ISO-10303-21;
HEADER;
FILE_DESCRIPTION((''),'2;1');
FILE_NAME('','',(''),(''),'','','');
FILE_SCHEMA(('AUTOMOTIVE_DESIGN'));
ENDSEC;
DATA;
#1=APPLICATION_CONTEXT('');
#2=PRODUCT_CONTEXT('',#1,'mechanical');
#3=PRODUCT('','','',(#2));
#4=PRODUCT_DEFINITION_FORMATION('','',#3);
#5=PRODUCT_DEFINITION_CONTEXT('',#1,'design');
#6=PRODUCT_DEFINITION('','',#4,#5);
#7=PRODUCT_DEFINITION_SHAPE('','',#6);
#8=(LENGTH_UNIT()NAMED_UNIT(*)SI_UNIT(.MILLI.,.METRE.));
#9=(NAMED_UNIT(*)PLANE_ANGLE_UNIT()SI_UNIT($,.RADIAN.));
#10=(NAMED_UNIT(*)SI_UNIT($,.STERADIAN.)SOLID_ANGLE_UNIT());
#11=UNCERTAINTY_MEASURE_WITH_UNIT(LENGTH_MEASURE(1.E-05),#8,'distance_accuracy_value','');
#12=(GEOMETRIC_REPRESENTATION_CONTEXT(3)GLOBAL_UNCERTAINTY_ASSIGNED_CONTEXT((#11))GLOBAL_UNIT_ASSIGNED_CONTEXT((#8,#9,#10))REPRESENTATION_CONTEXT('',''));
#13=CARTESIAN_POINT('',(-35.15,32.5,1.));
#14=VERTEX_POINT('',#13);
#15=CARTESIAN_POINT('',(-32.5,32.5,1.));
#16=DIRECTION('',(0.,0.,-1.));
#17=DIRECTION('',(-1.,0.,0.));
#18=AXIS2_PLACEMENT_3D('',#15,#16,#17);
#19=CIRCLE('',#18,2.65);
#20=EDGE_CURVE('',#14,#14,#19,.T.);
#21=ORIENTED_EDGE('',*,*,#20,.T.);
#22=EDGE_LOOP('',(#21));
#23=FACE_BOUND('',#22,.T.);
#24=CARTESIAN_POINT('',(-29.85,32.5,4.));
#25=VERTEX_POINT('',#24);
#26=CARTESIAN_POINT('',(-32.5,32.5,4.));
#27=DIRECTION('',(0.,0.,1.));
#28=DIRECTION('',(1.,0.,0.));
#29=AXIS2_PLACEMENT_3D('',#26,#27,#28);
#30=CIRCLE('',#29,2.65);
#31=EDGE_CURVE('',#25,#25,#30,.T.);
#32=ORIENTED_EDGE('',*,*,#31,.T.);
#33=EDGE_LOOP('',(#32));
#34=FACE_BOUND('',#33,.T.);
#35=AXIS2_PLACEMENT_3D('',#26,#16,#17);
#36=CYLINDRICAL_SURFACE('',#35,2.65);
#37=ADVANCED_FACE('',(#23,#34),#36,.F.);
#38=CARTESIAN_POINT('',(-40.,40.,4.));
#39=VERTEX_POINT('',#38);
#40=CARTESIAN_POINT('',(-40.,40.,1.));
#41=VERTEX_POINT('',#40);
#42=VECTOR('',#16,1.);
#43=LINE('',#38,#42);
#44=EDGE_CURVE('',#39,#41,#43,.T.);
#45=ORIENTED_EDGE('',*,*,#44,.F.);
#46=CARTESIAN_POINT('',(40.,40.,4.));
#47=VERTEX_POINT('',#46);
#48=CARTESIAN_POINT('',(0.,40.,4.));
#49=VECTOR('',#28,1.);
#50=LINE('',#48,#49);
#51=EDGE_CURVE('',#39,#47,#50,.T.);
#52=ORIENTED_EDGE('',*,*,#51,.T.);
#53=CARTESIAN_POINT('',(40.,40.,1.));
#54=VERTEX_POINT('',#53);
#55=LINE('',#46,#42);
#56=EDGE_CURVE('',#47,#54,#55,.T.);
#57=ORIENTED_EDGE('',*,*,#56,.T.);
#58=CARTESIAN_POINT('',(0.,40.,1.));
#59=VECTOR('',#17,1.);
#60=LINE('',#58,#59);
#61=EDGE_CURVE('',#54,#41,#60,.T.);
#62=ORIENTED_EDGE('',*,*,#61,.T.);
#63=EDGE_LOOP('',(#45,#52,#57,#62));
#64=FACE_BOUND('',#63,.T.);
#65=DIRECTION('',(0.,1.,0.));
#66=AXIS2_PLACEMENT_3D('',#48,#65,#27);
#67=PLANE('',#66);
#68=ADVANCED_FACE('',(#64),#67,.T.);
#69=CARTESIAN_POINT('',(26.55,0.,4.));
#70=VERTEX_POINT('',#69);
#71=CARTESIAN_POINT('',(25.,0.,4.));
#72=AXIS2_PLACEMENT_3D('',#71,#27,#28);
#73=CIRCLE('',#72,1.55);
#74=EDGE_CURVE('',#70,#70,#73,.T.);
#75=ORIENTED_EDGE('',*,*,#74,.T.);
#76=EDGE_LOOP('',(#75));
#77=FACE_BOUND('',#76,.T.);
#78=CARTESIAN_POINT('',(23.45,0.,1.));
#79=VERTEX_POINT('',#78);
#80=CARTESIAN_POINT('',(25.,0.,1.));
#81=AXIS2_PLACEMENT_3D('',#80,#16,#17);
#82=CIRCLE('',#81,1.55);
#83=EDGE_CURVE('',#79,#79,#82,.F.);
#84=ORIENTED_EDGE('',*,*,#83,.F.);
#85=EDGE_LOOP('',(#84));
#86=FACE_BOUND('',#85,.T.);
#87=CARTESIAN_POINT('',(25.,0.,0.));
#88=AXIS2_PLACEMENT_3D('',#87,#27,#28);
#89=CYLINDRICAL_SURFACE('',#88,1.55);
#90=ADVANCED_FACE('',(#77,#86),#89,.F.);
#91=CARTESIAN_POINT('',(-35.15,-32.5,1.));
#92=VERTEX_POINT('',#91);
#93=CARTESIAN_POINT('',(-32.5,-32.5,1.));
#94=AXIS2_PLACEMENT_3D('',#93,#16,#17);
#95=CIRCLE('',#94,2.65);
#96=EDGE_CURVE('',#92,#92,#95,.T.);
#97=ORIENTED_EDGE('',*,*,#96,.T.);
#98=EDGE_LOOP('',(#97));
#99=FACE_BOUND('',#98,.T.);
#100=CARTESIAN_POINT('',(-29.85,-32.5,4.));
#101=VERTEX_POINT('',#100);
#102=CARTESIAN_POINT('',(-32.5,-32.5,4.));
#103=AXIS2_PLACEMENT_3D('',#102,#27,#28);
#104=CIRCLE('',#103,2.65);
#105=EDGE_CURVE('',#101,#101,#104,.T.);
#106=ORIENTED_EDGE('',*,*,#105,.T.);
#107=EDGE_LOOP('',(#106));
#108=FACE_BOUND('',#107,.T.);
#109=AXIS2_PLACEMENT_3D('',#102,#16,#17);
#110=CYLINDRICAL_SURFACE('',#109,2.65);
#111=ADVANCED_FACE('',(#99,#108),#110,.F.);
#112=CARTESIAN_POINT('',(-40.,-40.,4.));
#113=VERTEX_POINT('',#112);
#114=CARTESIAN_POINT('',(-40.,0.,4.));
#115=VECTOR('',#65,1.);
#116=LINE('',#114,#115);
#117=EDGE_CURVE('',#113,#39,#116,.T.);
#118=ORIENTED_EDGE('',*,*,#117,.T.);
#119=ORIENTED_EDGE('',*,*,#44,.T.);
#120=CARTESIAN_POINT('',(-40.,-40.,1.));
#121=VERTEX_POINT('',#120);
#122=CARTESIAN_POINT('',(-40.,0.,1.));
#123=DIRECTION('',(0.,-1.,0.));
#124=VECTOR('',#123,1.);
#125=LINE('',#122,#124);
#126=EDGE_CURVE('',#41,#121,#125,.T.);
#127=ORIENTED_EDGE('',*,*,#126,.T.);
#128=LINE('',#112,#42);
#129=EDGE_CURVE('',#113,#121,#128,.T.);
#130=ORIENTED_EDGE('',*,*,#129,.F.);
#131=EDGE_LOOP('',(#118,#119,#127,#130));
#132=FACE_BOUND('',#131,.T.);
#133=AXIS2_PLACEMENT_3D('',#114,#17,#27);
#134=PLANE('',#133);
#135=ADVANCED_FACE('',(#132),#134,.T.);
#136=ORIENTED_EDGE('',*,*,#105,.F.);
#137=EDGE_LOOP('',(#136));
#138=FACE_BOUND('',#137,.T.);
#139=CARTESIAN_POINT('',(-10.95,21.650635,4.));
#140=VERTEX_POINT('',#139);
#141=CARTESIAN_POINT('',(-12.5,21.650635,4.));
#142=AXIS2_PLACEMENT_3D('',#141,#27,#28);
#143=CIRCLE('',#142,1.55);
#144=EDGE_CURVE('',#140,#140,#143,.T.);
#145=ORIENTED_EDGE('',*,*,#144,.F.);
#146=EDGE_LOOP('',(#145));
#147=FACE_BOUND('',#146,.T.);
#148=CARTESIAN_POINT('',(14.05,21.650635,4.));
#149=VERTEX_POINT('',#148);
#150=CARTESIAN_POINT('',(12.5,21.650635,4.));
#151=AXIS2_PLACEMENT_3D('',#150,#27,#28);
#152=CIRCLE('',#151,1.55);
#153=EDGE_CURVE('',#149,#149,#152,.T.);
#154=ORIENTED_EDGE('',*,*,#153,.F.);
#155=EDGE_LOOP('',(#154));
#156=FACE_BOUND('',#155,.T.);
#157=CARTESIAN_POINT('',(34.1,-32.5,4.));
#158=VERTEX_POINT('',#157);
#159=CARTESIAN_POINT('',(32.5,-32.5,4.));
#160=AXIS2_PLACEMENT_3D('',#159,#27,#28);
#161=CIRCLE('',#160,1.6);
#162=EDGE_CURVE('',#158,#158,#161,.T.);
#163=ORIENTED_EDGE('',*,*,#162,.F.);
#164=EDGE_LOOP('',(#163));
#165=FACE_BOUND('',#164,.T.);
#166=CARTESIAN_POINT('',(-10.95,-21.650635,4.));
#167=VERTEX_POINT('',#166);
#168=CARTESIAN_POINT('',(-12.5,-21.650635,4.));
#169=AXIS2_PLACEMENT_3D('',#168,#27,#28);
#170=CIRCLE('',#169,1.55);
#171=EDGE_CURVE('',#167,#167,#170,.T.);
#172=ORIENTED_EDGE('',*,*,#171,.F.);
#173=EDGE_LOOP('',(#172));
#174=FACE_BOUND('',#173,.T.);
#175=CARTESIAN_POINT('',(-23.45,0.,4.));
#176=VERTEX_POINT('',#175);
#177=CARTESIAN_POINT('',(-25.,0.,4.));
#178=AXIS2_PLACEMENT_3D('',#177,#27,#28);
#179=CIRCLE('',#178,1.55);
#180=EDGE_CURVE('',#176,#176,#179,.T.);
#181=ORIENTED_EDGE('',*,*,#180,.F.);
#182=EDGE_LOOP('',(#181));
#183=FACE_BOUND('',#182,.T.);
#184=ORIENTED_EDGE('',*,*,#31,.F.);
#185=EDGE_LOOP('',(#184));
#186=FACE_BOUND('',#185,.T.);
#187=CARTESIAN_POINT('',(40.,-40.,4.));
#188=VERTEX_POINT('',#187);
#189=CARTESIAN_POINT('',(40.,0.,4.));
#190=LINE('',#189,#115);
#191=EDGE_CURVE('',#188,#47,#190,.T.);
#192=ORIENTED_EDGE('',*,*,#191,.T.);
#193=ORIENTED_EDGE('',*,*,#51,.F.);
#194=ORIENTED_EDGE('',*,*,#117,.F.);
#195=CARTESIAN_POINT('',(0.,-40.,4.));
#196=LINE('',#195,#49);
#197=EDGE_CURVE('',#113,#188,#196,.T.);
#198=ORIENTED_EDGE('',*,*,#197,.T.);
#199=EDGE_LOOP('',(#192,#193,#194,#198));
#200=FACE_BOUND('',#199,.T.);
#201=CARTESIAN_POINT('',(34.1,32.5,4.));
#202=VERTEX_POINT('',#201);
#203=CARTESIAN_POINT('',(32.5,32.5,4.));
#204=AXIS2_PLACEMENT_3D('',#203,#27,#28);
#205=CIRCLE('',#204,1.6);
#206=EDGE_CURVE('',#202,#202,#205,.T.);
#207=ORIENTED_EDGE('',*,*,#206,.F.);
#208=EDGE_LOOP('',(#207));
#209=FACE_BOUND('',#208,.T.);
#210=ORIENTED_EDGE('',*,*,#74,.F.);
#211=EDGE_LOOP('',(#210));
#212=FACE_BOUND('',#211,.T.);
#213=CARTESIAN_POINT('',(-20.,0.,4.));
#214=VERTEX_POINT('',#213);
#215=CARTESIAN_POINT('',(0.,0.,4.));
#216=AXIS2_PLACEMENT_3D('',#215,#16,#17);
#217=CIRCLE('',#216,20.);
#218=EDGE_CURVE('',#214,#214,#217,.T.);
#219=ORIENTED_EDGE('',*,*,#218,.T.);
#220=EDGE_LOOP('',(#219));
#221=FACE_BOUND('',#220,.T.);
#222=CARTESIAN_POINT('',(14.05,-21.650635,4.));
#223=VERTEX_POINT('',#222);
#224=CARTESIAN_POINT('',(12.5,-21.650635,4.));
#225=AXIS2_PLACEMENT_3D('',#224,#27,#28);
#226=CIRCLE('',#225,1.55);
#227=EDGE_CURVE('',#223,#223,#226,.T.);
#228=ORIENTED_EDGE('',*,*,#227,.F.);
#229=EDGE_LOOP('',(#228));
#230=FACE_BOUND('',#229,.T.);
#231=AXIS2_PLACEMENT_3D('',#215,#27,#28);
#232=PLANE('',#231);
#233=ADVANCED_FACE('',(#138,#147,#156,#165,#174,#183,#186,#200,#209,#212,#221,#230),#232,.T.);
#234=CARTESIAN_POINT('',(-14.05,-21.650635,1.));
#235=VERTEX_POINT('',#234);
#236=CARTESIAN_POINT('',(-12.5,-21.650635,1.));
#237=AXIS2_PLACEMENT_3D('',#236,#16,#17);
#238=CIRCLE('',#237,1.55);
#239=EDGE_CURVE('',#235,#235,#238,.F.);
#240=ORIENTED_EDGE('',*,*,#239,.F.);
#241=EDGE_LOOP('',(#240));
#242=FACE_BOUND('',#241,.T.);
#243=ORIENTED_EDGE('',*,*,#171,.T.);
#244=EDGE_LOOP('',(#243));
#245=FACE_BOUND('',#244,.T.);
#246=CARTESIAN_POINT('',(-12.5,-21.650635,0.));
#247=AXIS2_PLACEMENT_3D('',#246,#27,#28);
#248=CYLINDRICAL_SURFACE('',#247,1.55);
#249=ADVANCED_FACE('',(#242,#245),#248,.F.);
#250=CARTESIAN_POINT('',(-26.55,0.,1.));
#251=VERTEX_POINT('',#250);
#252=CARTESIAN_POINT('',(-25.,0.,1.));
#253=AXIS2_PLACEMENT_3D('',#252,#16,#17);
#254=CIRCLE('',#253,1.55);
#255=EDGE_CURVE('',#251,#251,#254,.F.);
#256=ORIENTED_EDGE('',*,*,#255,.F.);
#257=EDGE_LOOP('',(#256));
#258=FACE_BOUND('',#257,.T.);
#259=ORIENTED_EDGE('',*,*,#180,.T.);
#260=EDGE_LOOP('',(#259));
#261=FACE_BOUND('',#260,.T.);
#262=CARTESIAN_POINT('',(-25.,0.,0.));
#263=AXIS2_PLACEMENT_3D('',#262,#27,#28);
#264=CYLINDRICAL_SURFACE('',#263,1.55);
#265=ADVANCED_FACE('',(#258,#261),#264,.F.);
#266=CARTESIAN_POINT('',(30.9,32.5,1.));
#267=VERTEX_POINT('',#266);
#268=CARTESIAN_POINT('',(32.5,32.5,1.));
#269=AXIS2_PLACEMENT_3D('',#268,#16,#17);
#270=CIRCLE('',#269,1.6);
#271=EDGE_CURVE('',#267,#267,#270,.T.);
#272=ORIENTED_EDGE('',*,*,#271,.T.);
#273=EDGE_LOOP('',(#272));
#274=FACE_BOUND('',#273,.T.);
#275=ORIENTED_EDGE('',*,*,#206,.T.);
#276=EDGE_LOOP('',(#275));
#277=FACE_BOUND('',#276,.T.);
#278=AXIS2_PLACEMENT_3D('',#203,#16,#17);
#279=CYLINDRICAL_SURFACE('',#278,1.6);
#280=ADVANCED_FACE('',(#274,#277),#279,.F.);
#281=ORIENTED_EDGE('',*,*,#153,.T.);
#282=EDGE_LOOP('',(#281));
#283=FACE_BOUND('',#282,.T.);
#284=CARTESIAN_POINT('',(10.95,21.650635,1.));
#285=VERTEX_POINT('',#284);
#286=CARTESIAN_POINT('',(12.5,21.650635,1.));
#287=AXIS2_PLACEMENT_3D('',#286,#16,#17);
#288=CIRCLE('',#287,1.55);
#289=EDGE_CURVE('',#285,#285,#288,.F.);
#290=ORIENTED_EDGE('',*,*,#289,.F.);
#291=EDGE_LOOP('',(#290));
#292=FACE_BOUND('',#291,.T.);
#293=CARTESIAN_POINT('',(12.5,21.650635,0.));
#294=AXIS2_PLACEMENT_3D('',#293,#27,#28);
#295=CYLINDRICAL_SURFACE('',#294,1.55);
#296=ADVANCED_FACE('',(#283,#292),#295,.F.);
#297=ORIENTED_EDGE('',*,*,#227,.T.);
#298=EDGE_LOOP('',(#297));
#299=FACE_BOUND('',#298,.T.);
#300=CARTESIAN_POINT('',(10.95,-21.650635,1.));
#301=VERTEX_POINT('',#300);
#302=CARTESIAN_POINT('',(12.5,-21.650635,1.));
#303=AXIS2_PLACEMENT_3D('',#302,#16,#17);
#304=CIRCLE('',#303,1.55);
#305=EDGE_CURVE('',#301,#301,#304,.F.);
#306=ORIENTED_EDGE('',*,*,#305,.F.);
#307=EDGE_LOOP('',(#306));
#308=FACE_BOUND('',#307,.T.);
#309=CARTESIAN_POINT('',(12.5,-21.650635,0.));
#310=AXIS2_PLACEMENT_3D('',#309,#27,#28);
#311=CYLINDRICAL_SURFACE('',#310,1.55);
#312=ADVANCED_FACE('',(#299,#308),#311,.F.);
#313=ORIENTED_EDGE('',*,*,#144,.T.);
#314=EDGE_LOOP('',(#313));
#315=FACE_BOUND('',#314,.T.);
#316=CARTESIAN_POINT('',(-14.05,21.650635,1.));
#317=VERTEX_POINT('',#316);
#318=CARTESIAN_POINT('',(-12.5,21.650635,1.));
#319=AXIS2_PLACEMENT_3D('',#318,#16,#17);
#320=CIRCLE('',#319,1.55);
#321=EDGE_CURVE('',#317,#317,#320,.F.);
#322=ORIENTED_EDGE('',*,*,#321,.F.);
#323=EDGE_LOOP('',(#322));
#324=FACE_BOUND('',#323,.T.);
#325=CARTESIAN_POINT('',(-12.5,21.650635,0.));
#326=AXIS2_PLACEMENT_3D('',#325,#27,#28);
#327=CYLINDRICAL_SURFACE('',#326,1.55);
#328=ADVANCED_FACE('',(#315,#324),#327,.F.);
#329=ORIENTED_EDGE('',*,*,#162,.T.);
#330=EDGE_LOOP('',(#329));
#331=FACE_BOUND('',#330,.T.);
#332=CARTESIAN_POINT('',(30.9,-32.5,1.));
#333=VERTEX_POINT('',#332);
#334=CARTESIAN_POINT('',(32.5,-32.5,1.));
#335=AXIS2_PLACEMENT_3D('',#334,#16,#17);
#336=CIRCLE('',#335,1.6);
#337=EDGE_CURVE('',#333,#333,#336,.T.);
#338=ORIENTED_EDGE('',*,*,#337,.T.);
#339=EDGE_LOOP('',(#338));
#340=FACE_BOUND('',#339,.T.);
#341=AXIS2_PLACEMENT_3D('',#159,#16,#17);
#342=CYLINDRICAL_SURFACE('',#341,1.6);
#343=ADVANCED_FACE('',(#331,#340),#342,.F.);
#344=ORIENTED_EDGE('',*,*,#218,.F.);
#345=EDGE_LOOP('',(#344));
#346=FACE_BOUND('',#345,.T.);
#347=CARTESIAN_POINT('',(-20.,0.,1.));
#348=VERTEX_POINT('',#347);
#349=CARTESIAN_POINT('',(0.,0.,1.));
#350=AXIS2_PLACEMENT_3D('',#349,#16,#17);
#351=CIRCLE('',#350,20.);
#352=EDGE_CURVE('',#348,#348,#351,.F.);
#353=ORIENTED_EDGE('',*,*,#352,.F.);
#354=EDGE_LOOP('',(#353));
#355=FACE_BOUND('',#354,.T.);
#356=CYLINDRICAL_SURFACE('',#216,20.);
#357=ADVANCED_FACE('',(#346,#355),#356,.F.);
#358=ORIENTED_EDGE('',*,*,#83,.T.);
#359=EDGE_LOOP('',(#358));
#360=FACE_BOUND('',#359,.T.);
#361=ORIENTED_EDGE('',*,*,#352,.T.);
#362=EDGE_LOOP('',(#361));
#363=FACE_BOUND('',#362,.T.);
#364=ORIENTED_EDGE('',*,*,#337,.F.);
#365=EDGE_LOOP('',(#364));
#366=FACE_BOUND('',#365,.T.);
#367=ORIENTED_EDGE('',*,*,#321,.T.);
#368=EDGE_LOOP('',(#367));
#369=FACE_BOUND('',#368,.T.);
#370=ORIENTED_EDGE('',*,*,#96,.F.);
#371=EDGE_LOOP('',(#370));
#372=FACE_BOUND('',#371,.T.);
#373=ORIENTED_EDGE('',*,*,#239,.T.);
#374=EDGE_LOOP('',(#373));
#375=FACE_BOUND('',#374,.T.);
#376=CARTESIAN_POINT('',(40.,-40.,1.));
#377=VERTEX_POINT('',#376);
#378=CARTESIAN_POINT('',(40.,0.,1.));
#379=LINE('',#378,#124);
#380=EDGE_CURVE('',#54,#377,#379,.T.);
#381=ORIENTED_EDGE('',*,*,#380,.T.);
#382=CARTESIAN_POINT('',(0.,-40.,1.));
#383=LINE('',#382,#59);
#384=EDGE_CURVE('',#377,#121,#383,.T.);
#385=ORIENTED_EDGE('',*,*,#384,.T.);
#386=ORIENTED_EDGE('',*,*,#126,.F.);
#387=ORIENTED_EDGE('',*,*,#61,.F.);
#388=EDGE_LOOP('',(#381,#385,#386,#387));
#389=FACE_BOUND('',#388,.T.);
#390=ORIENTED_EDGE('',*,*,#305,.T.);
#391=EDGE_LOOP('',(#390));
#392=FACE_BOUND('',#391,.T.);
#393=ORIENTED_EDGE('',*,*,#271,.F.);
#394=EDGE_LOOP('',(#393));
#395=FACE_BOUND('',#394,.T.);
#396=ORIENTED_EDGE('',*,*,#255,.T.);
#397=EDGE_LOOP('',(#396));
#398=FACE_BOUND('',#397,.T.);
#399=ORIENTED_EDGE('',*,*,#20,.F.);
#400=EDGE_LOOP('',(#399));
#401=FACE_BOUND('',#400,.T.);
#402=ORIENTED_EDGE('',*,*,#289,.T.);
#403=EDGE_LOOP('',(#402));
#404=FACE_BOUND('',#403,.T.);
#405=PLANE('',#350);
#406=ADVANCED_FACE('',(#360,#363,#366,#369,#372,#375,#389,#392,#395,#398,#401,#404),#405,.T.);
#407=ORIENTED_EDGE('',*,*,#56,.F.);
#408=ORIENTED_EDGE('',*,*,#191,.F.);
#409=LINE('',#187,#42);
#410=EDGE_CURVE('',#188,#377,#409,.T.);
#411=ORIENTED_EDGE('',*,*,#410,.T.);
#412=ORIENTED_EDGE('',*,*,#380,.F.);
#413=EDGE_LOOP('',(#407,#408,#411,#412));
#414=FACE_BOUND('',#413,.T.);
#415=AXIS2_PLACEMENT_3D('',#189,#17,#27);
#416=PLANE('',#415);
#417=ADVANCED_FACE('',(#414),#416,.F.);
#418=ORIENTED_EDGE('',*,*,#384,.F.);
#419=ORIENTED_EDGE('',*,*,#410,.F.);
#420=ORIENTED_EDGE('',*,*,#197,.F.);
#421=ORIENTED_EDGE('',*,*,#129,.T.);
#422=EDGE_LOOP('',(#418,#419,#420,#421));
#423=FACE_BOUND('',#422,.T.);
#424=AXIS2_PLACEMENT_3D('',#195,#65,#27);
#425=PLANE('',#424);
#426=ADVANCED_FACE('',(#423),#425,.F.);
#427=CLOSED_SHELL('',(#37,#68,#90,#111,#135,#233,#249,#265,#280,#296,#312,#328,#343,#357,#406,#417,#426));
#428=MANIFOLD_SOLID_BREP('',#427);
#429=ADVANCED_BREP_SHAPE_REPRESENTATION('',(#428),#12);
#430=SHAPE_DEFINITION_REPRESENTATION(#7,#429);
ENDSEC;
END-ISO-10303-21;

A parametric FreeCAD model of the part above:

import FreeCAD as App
import Part
import Sketcher


def add_polygon(sketch, points):
    """Adds a closed chain of lines whose ends are joined by coincident constraints."""
    first, n = sketch.GeometryCount, len(points)
    for a, b in zip(points, points[1:] + points[:1]):
        sketch.addGeometry(Part.LineSegment(App.Vector(*a, 0), App.Vector(*b, 0)), False)
    for i in range(n):
        sketch.addConstraint(Sketcher.Constraint("Coincident", first + i, 2, first + (i + 1) % n, 1))

doc = App.newDocument("Part")
body = doc.addObject("PartDesign::Body", "Body")

sketch1 = doc.addObject("Sketcher::SketchObject", "Sketch")
body.addObject(sketch1)
sketch1.AttachmentSupport = (doc.XY_Plane, [""])
sketch1.MapMode = "FlatFace"
add_polygon(sketch1, [(-40, 40), (-40, -40), (40, -40), (40, 40)])
sketch1.addGeometry(Part.Circle(App.Vector(-32.5, -32.5, 0), App.Vector(0, 0, 1), 2.6), False)
sketch1.addGeometry(Part.Circle(App.Vector(32.5, -32.5, 0), App.Vector(0, 0, 1), 1.6), False)
sketch1.addGeometry(Part.Circle(App.Vector(-32.5, 32.5, 0), App.Vector(0, 0, 1), 2.6), False)
sketch1.addGeometry(Part.Circle(App.Vector(0, 0, 0), App.Vector(0, 0, 1), 18), False)
sketch1.addGeometry(Part.Circle(App.Vector(32.5, 32.5, 0), App.Vector(0, 0, 1), 1.6), False)
sketch1.addConstraint(Sketcher.Constraint("Vertical", 0))
sketch1.addConstraint(Sketcher.Constraint("Horizontal", 1))
sketch1.addConstraint(Sketcher.Constraint("Vertical", 2))
sketch1.addConstraint(Sketcher.Constraint("Horizontal", 3))
sketch1.addConstraint(Sketcher.Constraint("Coincident", 7, 3, -1, 1))
sketch1.addConstraint(Sketcher.Constraint("Equal", 4, 6))
sketch1.addConstraint(Sketcher.Constraint("Equal", 5, 8))
sketch1.addConstraint(Sketcher.Constraint("Symmetric", 5, 3, 6, 3, -1, 1))
sketch1.addConstraint(Sketcher.Constraint("Symmetric", 4, 3, 8, 3, -1, 1))
sketch1.addConstraint(Sketcher.Constraint("Symmetric", 0, 2, 2, 2, -1, 1))
sketch1.addConstraint(Sketcher.Constraint("Symmetric", 4, 3, 5, 3, -2))
sketch1.addConstraint(Sketcher.Constraint("Equal", 3, 0))
sketch1.addConstraint(Sketcher.Constraint("Diameter", 7, 36.0))
sketch1.addConstraint(Sketcher.Constraint("Diameter", 4, 5.3))
sketch1.addConstraint(Sketcher.Constraint("Diameter", 5, 3.2))
sketch1.addConstraint(Sketcher.Constraint("DistanceX", 1, 1, 1, 2, 80.0))
sketch1.addConstraint(Sketcher.Constraint("DistanceX", 4, 3, 5, 3, 65.0))
sketch1.addConstraint(Sketcher.Constraint("DistanceY", 4, 3, 6, 3, 65.0))
pad1 = doc.addObject("PartDesign::Pad", "Pad")
body.addObject(pad1)
pad1.Profile = sketch1
pad1.Length = 4

sketch2 = doc.addObject("Sketcher::SketchObject", "Sketch001")
body.addObject(sketch2)
sketch2.AttachmentSupport = (doc.XY_Plane, [""])
sketch2.MapMode = "FlatFace"
sketch2.AttachmentOffset = App.Placement(App.Vector(0, 0, 4), App.Rotation())
sketch2.addGeometry(Part.Circle(App.Vector(-12.5, 21.7, 0), App.Vector(0, 0, 1), 1.6), False)
sketch2.addGeometry(Part.Circle(App.Vector(12.5, 21.7, 0), App.Vector(0, 0, 1), 1.6), False)
sketch2.addGeometry(Part.Circle(App.Vector(25, 0, 0), App.Vector(0, 0, 1), 1.6), False)
sketch2.addGeometry(Part.Circle(App.Vector(12.5, -21.7, 0), App.Vector(0, 0, 1), 1.6), False)
sketch2.addGeometry(Part.Circle(App.Vector(-12.5, -21.7, 0), App.Vector(0, 0, 1), 1.6), False)
sketch2.addGeometry(Part.Circle(App.Vector(-25, 0, 0), App.Vector(0, 0, 1), 1.6), False)
sketch2.addConstraint(Sketcher.Constraint("Equal", 0, 1))
sketch2.addConstraint(Sketcher.Constraint("Equal", 1, 2))
sketch2.addConstraint(Sketcher.Constraint("Equal", 2, 3))
sketch2.addConstraint(Sketcher.Constraint("Equal", 3, 4))
sketch2.addConstraint(Sketcher.Constraint("Equal", 4, 5))
sketch2.addConstraint(Sketcher.Constraint("Symmetric", 0, 3, 3, 3, -1, 1))
sketch2.addConstraint(Sketcher.Constraint("Symmetric", 1, 3, 4, 3, -1, 1))
sketch2.addConstraint(Sketcher.Constraint("Symmetric", 2, 3, 5, 3, -1, 1))
sketch2.addConstraint(Sketcher.Constraint("Symmetric", 0, 3, 1, 3, -2))
sketch2.addConstraint(Sketcher.Constraint("PointOnObject", 2, 3, -1))
sketch2.addConstraint(Sketcher.Constraint("Diameter", 0, 3.1))
sketch2.addConstraint(Sketcher.Constraint("DistanceX", -1, 1, 2, 3, 25.0))
sketch2.addConstraint(Sketcher.Constraint("DistanceX", 0, 3, 1, 3, 25.0))
sketch2.addConstraint(Sketcher.Constraint("DistanceY", 3, 3, 1, 3, 43.30127))
pocket1 = doc.addObject("PartDesign::Pocket", "Pocket")
body.addObject(pocket1)
pocket1.Profile = sketch2
pocket1.Type = "ThroughAll"

sketch3 = doc.addObject("Sketcher::SketchObject", "Sketch002")
body.addObject(sketch3)
sketch3.AttachmentSupport = (doc.XY_Plane, [""])
sketch3.MapMode = "FlatFace"
sketch3.addGeometry(Part.Circle(App.Vector(0, 0, 0), App.Vector(0, 0, 1), 20), False)
sketch3.addConstraint(Sketcher.Constraint("Coincident", 0, 3, -1, 1))
sketch3.addConstraint(Sketcher.Constraint("Diameter", 0, 40.0))
pocket2 = doc.addObject("PartDesign::Pocket", "Pocket001")
body.addObject(pocket2)
pocket2.Profile = sketch3
pocket2.Type = "ThroughAll"
pocket2.Reversed = True

sketch4 = doc.addObject("Sketcher::SketchObject", "Sketch003")
body.addObject(sketch4)
sketch4.AttachmentSupport = (doc.XY_Plane, [""])
sketch4.MapMode = "FlatFace"
add_polygon(sketch4, [(58, 53), (58, -65), (-84, -65), (-84, 53)])
sketch4.addConstraint(Sketcher.Constraint("Vertical", 0))
sketch4.addConstraint(Sketcher.Constraint("Horizontal", 1))
sketch4.addConstraint(Sketcher.Constraint("Vertical", 2))
sketch4.addConstraint(Sketcher.Constraint("Horizontal", 3))
sketch4.addConstraint(Sketcher.Constraint("DistanceX", 1, 2, 1, 1, 141.692074))
sketch4.addConstraint(Sketcher.Constraint("DistanceY", 0, 2, 0, 1, 118.011672))
sketch4.addConstraint(Sketcher.Constraint("DistanceX", -1, 1, 0, 2, 57.964939))
sketch4.addConstraint(Sketcher.Constraint("DistanceY", 0, 2, -1, 1, 64.925937))
pocket3 = doc.addObject("PartDesign::Pocket", "Pocket002")
body.addObject(pocket3)
pocket3.Profile = sketch4
pocket3.Length = 1
pocket3.Reversed = True

doc.recompute()
